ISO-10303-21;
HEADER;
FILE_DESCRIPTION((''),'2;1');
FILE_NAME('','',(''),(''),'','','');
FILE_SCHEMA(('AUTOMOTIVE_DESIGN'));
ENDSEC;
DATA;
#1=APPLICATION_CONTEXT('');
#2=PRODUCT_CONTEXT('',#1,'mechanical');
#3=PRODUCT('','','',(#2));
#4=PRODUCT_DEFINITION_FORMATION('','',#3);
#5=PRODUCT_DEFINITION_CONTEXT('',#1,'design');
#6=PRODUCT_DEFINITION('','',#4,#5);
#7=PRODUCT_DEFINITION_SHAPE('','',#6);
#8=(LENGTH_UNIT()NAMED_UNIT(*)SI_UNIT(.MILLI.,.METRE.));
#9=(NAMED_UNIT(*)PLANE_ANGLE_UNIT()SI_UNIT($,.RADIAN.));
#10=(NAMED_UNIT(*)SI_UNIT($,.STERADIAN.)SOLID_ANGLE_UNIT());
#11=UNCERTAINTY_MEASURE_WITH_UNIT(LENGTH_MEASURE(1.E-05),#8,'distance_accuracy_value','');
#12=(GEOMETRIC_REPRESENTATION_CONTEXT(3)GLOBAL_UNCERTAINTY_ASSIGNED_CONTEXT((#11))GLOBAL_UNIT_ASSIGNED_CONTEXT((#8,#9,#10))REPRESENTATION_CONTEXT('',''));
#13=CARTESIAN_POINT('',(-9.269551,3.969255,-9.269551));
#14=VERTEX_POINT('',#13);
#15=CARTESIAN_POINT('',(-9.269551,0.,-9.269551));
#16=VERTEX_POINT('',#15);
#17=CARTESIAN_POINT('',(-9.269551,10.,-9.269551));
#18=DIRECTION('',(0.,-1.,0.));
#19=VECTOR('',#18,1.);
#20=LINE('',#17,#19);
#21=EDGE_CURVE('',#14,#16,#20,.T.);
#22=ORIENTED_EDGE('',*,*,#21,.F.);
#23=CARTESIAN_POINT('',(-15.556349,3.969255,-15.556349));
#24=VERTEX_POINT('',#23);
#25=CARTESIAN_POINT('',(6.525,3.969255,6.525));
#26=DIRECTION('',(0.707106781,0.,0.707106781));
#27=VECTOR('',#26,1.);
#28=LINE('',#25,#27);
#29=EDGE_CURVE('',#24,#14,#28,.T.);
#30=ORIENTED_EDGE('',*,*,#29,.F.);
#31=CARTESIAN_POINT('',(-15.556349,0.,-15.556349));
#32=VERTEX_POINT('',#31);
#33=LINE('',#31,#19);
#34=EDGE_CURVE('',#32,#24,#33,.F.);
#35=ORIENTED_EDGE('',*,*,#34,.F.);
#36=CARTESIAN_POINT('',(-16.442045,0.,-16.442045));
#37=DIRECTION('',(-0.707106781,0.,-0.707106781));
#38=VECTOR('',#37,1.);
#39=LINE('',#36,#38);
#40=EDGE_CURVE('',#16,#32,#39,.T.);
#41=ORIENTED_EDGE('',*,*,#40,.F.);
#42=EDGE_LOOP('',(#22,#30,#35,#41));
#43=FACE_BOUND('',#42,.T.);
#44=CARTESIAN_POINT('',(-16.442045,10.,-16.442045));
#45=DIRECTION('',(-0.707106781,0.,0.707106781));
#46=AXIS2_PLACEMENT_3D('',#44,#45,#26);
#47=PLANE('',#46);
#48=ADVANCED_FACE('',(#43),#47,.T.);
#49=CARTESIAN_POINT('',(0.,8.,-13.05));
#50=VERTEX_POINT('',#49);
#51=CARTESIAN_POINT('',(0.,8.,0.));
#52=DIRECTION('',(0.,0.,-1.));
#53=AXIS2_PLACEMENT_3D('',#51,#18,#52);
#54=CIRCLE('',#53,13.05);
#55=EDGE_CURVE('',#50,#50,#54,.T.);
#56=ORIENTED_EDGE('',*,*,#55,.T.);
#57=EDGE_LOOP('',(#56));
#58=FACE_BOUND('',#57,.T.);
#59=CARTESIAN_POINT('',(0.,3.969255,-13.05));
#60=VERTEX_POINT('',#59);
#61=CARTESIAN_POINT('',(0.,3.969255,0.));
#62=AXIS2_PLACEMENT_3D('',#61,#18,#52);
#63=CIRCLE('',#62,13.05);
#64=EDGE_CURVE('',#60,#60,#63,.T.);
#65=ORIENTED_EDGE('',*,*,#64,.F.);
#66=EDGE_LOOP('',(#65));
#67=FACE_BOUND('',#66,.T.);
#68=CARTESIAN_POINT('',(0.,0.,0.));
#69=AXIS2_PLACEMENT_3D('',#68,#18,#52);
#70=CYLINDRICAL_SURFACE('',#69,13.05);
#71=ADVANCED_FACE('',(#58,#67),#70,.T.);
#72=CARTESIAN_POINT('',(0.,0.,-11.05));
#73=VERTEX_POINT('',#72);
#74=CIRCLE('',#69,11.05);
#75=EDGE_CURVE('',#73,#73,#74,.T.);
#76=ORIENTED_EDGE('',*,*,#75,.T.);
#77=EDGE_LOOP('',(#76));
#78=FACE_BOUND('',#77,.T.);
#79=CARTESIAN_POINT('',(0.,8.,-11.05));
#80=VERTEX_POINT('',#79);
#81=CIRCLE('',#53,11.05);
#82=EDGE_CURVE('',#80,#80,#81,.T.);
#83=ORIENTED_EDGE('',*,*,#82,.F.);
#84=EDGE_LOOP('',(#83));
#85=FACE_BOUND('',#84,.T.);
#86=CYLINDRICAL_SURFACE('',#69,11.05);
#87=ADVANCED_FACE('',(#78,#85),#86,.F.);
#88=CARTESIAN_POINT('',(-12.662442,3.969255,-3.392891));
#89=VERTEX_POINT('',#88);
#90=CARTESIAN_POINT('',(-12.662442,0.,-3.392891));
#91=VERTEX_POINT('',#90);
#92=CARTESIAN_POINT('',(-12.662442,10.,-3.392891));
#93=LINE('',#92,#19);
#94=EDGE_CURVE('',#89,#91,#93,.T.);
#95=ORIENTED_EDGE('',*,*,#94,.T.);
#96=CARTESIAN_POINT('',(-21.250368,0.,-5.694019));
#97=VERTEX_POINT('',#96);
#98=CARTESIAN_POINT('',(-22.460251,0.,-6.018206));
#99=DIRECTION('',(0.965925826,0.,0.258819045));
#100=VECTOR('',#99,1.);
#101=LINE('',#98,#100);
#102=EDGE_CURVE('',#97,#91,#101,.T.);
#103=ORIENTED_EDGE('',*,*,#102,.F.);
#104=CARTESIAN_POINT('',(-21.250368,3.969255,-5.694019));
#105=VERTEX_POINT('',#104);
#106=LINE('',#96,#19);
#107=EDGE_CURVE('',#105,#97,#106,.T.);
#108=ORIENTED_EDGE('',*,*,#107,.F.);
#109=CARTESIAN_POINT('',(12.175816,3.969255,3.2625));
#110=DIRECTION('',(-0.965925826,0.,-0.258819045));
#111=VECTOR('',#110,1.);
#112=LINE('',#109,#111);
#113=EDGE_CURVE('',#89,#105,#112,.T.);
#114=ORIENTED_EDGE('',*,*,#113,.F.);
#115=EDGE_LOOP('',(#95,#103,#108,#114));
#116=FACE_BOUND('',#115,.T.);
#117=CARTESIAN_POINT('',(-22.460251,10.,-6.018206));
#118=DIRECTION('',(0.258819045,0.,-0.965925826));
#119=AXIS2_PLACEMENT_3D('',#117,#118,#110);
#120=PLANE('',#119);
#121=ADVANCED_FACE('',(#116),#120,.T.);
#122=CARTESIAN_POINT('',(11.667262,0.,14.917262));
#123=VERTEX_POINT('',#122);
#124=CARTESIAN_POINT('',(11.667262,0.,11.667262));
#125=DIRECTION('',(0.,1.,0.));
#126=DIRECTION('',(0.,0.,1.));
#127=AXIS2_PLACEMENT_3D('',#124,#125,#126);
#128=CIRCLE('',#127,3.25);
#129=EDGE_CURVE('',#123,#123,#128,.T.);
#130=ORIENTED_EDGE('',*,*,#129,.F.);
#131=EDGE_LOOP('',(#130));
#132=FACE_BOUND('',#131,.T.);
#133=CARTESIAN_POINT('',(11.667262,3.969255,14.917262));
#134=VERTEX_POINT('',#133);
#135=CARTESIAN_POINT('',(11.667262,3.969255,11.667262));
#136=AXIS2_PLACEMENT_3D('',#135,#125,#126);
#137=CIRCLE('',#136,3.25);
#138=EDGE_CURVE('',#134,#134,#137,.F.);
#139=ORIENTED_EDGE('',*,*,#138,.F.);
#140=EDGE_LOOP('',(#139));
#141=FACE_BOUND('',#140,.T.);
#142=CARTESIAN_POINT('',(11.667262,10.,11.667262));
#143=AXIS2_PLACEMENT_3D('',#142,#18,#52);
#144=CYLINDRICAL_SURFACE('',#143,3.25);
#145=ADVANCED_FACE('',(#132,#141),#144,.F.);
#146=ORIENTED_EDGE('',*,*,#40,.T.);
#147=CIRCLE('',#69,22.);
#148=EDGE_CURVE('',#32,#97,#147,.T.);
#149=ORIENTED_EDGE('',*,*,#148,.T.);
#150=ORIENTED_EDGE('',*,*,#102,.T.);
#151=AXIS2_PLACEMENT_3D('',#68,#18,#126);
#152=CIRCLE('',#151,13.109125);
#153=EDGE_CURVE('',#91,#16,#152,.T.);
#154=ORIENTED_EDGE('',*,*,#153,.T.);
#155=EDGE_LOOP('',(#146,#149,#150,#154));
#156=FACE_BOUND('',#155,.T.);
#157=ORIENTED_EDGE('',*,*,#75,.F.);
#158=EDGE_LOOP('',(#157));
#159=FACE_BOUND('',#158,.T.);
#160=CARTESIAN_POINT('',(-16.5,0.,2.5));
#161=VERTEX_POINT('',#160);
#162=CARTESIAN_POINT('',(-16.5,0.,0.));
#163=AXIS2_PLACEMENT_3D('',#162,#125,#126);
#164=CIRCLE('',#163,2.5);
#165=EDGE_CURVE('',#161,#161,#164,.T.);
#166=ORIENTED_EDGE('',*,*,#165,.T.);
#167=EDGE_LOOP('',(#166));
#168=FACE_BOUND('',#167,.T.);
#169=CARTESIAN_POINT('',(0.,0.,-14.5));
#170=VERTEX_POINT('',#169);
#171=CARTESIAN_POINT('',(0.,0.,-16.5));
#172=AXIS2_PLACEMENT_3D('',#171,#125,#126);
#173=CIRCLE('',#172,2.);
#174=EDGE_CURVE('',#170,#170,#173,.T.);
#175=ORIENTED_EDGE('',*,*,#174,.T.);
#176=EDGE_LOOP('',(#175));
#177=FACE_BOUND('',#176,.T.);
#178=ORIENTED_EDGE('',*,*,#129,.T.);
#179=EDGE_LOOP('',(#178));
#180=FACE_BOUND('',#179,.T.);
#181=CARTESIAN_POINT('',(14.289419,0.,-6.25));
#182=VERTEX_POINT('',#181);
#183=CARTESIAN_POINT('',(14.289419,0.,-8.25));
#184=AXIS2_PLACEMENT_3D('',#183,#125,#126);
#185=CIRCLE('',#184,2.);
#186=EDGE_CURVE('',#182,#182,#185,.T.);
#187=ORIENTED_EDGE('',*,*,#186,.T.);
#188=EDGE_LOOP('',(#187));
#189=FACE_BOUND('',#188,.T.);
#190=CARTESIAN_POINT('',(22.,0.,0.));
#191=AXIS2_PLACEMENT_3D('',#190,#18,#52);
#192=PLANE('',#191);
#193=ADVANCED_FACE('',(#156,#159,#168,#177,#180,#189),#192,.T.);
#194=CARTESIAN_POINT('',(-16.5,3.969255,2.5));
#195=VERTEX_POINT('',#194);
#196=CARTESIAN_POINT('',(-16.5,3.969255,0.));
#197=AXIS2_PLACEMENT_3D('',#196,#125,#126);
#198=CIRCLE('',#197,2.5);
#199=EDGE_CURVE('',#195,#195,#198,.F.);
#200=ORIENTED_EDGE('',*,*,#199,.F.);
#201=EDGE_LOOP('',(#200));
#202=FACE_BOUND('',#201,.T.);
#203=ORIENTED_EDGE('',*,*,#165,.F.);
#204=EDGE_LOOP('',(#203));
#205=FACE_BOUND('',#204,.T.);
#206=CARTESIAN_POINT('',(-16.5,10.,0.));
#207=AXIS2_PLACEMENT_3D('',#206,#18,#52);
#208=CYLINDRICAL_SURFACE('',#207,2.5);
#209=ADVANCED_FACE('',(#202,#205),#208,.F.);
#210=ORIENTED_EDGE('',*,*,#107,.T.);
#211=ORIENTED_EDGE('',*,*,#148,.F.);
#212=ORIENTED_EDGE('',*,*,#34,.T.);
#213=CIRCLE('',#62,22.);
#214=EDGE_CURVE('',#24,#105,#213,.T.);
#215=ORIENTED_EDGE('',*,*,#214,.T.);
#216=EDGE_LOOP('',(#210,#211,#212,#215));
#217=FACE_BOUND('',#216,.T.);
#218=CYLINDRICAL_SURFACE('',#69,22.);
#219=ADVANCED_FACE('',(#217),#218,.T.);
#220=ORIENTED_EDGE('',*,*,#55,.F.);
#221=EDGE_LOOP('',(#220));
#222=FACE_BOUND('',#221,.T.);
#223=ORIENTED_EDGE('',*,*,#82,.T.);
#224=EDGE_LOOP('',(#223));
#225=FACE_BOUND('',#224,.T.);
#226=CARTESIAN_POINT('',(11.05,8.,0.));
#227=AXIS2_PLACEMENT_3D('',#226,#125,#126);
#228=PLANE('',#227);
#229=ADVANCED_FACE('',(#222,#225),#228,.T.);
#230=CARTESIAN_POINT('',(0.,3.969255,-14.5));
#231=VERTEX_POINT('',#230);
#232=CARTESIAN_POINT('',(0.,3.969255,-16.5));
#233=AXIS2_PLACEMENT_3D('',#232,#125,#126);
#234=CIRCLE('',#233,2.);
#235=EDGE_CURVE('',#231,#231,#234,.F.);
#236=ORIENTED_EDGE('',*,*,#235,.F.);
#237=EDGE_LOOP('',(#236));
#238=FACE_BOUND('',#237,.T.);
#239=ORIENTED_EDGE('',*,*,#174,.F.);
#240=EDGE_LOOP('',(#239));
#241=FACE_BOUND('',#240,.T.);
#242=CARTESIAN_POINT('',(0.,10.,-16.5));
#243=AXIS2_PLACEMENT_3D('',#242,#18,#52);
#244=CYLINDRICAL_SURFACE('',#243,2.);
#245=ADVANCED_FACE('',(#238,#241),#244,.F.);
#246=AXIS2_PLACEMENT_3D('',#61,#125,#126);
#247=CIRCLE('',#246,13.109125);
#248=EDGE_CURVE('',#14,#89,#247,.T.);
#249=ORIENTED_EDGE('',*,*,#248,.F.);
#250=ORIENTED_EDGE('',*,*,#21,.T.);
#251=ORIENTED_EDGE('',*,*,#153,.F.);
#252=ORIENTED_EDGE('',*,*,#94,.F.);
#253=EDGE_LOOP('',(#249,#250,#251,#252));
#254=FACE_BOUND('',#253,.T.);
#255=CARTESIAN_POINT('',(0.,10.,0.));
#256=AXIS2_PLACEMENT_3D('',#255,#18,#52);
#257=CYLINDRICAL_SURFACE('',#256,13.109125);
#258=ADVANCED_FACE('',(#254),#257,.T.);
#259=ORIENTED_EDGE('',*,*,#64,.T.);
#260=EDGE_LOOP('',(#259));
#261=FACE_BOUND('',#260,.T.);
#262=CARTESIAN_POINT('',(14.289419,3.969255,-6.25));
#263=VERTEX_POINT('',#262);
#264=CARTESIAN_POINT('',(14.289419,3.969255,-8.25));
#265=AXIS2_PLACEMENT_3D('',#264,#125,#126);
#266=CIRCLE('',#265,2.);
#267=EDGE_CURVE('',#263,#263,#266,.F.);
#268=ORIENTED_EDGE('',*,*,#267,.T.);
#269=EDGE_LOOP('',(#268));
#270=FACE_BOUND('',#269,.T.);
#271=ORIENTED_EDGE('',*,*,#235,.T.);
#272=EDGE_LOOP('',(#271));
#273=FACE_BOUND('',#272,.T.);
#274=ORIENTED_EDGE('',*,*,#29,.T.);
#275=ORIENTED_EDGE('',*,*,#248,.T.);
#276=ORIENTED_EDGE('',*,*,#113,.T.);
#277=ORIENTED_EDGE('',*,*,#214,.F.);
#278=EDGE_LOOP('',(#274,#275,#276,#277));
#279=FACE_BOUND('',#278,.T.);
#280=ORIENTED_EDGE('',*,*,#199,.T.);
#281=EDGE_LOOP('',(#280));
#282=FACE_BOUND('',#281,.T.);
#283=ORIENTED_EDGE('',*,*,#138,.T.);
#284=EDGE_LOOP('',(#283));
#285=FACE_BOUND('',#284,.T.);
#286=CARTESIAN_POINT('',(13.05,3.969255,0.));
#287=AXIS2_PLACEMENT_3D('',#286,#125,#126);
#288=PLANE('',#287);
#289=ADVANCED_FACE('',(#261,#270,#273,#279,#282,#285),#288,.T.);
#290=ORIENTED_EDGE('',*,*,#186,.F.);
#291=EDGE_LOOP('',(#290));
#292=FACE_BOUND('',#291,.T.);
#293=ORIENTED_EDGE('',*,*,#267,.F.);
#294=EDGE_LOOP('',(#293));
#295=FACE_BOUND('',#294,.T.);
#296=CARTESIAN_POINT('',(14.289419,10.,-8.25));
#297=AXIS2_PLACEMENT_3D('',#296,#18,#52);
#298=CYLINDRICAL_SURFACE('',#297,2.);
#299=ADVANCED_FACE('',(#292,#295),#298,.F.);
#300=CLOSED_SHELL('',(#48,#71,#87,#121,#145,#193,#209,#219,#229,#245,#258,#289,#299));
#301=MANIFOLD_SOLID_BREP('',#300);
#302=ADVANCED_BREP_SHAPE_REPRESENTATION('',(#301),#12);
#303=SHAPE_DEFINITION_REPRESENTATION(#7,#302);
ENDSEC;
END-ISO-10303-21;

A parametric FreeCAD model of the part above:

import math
import FreeCAD as App
import Part
import Sketcher

V = App.Vector
Q = App.Units.Quantity


def add_polygon(sketch, points):
    """Adds a closed chain of lines whose ends are joined by coincident constraints."""
    first, n = sketch.GeometryCount, len(points)
    for a, b in zip(points, points[1:] + points[:1]):
        sketch.addGeometry(Part.LineSegment(App.Vector(*a, 0), App.Vector(*b, 0)), False)
    for i in range(n):
        sketch.addConstraint(Sketcher.Constraint("Coincident", first + i, 2, first + (i + 1) % n, 1))

doc = App.newDocument("Part")
body = doc.addObject("PartDesign::Body", "Body")

# Sketch on XY plane
sketch1 = body.newObject("Sketcher::SketchObject", "Sketch")
sketch1.AttachmentSupport = (doc.getObject("XY_Plane"), [""])
sketch1.MapMode = "FlatFace"
add_polygon(sketch1, [(11.1, 8), (11.1, 0), (22, 0), (22, 4), (13.1, 4), (13.1, 8)])  # lines 0-5
sketch1.addConstraint([
    Sketcher.Constraint("Vertical", 0),
    Sketcher.Constraint("Horizontal", 1),
    Sketcher.Constraint("Vertical", 2),
    Sketcher.Constraint("Horizontal", 3),
    Sketcher.Constraint("Vertical", 4),
    Sketcher.Constraint("Horizontal", 5),
    Sketcher.Constraint("PointOnObject", 0, 2, -1),
    Sketcher.Constraint("DistanceX", 5, 2, 5, 1, 2.0),
    Sketcher.Constraint("DistanceY", 0, 2, 0, 1, 8.0),
    Sketcher.Constraint("DistanceX", -1, 1, 1, 2, 22.0),
    Sketcher.Constraint("DistanceX", 1, 1, 1, 2, 10.95),
    Sketcher.Constraint("DistanceY", 2, 1, 2, 2, 3.969255),
])
revolution = body.newObject("PartDesign::Revolution", "Revolution")
revolution.Profile = sketch1
revolution.ReferenceAxis = (sketch1, ["V_Axis"])
revolution.Angle = 360

# Sketch on XZ plane
sketch2 = body.newObject("Sketcher::SketchObject", "Sketch001")
sketch2.AttachmentSupport = (doc.getObject("XZ_Plane"), [""])
sketch2.MapMode = "FlatFace"
sketch2.addGeometry([
    Part.Circle(V(-16.5, 0, 0), V(0, 0, 1), 2.5),  # 0
    Part.Circle(V(11.7, 11.7, 0), V(0, 0, 1), 3.2),  # 1
    Part.Circle(V(14.3, -8.2, 0), V(0, 0, 1), 2),  # 2
    Part.Circle(V(0, -16.5, 0), V(0, 0, 1), 2),  # 3
    Part.LineSegment(V(-9.3, -9.3, 0), V(-16.4, -16.4, 0)),  # 4
    Part.ArcOfCircle(Part.Circle(V(0, 0, 0), V(0, 0, 1), 23.3), math.radians(-165), math.radians(-135)),  # 5
    Part.LineSegment(V(-22.5, -6, 0), V(-12.7, -3.4, 0)),  # 6
    Part.ArcOfCircle(Part.Circle(V(0, 0, 0), V(0, 0, 1), 13.1), math.radians(-165), math.radians(-135)),  # 7
], False)
sketch2.addConstraint([
    Sketcher.Constraint("Coincident", 4, 2, 5, 2),
    Sketcher.Constraint("Coincident", 5, 1, 6, 1),
    Sketcher.Constraint("Coincident", 6, 2, 7, 1),
    Sketcher.Constraint("Coincident", 7, 2, 4, 1),
    Sketcher.Constraint("Coincident", 5, 3, -1, 1),
    Sketcher.Constraint("Coincident", 7, 3, -1, 1),
    Sketcher.Constraint("Equal", 2, 3),
    Sketcher.Constraint("PointOnObject", 0, 3, -1),
    Sketcher.Constraint("PointOnObject", 3, 3, -2),
    Sketcher.Constraint("Diameter", 0, 5.0),
    Sketcher.Constraint("Diameter", 2, 4.0),
    Sketcher.Constraint("Diameter", 1, 6.5),
    Sketcher.Constraint("Angle", 4, Q("-135 deg")),
    Sketcher.Constraint("Angle", 6, Q("15 deg")),
    Sketcher.Constraint("DistanceX", 0, 3, -1, 1, 16.5),
    Sketcher.Constraint("DistanceY", 3, 3, -1, 1, 16.5),
    Sketcher.Constraint("DistanceY", 2, 3, -1, 1, 8.25),
    Sketcher.Constraint("Radius", 5, 23.252563),
    Sketcher.Constraint("Radius", 7, 13.109125),
    Sketcher.Constraint("DistanceX", -1, 1, 1, 3, 11.667262),
    Sketcher.Constraint("DistanceY", -1, 1, 1, 3, 11.667262),
    Sketcher.Constraint("DistanceX", -1, 1, 2, 3, 14.289419),
    Sketcher.Constraint("DistanceX", 5, 1, -1, 1, 22.460251),
    Sketcher.Constraint("DistanceX", 7, 2, -1, 1, 9.269551),
])
pocket1 = body.newObject("PartDesign::Pocket", "Pocket")
pocket1.Profile = sketch2
pocket1.Length = 10

doc.recompute()
